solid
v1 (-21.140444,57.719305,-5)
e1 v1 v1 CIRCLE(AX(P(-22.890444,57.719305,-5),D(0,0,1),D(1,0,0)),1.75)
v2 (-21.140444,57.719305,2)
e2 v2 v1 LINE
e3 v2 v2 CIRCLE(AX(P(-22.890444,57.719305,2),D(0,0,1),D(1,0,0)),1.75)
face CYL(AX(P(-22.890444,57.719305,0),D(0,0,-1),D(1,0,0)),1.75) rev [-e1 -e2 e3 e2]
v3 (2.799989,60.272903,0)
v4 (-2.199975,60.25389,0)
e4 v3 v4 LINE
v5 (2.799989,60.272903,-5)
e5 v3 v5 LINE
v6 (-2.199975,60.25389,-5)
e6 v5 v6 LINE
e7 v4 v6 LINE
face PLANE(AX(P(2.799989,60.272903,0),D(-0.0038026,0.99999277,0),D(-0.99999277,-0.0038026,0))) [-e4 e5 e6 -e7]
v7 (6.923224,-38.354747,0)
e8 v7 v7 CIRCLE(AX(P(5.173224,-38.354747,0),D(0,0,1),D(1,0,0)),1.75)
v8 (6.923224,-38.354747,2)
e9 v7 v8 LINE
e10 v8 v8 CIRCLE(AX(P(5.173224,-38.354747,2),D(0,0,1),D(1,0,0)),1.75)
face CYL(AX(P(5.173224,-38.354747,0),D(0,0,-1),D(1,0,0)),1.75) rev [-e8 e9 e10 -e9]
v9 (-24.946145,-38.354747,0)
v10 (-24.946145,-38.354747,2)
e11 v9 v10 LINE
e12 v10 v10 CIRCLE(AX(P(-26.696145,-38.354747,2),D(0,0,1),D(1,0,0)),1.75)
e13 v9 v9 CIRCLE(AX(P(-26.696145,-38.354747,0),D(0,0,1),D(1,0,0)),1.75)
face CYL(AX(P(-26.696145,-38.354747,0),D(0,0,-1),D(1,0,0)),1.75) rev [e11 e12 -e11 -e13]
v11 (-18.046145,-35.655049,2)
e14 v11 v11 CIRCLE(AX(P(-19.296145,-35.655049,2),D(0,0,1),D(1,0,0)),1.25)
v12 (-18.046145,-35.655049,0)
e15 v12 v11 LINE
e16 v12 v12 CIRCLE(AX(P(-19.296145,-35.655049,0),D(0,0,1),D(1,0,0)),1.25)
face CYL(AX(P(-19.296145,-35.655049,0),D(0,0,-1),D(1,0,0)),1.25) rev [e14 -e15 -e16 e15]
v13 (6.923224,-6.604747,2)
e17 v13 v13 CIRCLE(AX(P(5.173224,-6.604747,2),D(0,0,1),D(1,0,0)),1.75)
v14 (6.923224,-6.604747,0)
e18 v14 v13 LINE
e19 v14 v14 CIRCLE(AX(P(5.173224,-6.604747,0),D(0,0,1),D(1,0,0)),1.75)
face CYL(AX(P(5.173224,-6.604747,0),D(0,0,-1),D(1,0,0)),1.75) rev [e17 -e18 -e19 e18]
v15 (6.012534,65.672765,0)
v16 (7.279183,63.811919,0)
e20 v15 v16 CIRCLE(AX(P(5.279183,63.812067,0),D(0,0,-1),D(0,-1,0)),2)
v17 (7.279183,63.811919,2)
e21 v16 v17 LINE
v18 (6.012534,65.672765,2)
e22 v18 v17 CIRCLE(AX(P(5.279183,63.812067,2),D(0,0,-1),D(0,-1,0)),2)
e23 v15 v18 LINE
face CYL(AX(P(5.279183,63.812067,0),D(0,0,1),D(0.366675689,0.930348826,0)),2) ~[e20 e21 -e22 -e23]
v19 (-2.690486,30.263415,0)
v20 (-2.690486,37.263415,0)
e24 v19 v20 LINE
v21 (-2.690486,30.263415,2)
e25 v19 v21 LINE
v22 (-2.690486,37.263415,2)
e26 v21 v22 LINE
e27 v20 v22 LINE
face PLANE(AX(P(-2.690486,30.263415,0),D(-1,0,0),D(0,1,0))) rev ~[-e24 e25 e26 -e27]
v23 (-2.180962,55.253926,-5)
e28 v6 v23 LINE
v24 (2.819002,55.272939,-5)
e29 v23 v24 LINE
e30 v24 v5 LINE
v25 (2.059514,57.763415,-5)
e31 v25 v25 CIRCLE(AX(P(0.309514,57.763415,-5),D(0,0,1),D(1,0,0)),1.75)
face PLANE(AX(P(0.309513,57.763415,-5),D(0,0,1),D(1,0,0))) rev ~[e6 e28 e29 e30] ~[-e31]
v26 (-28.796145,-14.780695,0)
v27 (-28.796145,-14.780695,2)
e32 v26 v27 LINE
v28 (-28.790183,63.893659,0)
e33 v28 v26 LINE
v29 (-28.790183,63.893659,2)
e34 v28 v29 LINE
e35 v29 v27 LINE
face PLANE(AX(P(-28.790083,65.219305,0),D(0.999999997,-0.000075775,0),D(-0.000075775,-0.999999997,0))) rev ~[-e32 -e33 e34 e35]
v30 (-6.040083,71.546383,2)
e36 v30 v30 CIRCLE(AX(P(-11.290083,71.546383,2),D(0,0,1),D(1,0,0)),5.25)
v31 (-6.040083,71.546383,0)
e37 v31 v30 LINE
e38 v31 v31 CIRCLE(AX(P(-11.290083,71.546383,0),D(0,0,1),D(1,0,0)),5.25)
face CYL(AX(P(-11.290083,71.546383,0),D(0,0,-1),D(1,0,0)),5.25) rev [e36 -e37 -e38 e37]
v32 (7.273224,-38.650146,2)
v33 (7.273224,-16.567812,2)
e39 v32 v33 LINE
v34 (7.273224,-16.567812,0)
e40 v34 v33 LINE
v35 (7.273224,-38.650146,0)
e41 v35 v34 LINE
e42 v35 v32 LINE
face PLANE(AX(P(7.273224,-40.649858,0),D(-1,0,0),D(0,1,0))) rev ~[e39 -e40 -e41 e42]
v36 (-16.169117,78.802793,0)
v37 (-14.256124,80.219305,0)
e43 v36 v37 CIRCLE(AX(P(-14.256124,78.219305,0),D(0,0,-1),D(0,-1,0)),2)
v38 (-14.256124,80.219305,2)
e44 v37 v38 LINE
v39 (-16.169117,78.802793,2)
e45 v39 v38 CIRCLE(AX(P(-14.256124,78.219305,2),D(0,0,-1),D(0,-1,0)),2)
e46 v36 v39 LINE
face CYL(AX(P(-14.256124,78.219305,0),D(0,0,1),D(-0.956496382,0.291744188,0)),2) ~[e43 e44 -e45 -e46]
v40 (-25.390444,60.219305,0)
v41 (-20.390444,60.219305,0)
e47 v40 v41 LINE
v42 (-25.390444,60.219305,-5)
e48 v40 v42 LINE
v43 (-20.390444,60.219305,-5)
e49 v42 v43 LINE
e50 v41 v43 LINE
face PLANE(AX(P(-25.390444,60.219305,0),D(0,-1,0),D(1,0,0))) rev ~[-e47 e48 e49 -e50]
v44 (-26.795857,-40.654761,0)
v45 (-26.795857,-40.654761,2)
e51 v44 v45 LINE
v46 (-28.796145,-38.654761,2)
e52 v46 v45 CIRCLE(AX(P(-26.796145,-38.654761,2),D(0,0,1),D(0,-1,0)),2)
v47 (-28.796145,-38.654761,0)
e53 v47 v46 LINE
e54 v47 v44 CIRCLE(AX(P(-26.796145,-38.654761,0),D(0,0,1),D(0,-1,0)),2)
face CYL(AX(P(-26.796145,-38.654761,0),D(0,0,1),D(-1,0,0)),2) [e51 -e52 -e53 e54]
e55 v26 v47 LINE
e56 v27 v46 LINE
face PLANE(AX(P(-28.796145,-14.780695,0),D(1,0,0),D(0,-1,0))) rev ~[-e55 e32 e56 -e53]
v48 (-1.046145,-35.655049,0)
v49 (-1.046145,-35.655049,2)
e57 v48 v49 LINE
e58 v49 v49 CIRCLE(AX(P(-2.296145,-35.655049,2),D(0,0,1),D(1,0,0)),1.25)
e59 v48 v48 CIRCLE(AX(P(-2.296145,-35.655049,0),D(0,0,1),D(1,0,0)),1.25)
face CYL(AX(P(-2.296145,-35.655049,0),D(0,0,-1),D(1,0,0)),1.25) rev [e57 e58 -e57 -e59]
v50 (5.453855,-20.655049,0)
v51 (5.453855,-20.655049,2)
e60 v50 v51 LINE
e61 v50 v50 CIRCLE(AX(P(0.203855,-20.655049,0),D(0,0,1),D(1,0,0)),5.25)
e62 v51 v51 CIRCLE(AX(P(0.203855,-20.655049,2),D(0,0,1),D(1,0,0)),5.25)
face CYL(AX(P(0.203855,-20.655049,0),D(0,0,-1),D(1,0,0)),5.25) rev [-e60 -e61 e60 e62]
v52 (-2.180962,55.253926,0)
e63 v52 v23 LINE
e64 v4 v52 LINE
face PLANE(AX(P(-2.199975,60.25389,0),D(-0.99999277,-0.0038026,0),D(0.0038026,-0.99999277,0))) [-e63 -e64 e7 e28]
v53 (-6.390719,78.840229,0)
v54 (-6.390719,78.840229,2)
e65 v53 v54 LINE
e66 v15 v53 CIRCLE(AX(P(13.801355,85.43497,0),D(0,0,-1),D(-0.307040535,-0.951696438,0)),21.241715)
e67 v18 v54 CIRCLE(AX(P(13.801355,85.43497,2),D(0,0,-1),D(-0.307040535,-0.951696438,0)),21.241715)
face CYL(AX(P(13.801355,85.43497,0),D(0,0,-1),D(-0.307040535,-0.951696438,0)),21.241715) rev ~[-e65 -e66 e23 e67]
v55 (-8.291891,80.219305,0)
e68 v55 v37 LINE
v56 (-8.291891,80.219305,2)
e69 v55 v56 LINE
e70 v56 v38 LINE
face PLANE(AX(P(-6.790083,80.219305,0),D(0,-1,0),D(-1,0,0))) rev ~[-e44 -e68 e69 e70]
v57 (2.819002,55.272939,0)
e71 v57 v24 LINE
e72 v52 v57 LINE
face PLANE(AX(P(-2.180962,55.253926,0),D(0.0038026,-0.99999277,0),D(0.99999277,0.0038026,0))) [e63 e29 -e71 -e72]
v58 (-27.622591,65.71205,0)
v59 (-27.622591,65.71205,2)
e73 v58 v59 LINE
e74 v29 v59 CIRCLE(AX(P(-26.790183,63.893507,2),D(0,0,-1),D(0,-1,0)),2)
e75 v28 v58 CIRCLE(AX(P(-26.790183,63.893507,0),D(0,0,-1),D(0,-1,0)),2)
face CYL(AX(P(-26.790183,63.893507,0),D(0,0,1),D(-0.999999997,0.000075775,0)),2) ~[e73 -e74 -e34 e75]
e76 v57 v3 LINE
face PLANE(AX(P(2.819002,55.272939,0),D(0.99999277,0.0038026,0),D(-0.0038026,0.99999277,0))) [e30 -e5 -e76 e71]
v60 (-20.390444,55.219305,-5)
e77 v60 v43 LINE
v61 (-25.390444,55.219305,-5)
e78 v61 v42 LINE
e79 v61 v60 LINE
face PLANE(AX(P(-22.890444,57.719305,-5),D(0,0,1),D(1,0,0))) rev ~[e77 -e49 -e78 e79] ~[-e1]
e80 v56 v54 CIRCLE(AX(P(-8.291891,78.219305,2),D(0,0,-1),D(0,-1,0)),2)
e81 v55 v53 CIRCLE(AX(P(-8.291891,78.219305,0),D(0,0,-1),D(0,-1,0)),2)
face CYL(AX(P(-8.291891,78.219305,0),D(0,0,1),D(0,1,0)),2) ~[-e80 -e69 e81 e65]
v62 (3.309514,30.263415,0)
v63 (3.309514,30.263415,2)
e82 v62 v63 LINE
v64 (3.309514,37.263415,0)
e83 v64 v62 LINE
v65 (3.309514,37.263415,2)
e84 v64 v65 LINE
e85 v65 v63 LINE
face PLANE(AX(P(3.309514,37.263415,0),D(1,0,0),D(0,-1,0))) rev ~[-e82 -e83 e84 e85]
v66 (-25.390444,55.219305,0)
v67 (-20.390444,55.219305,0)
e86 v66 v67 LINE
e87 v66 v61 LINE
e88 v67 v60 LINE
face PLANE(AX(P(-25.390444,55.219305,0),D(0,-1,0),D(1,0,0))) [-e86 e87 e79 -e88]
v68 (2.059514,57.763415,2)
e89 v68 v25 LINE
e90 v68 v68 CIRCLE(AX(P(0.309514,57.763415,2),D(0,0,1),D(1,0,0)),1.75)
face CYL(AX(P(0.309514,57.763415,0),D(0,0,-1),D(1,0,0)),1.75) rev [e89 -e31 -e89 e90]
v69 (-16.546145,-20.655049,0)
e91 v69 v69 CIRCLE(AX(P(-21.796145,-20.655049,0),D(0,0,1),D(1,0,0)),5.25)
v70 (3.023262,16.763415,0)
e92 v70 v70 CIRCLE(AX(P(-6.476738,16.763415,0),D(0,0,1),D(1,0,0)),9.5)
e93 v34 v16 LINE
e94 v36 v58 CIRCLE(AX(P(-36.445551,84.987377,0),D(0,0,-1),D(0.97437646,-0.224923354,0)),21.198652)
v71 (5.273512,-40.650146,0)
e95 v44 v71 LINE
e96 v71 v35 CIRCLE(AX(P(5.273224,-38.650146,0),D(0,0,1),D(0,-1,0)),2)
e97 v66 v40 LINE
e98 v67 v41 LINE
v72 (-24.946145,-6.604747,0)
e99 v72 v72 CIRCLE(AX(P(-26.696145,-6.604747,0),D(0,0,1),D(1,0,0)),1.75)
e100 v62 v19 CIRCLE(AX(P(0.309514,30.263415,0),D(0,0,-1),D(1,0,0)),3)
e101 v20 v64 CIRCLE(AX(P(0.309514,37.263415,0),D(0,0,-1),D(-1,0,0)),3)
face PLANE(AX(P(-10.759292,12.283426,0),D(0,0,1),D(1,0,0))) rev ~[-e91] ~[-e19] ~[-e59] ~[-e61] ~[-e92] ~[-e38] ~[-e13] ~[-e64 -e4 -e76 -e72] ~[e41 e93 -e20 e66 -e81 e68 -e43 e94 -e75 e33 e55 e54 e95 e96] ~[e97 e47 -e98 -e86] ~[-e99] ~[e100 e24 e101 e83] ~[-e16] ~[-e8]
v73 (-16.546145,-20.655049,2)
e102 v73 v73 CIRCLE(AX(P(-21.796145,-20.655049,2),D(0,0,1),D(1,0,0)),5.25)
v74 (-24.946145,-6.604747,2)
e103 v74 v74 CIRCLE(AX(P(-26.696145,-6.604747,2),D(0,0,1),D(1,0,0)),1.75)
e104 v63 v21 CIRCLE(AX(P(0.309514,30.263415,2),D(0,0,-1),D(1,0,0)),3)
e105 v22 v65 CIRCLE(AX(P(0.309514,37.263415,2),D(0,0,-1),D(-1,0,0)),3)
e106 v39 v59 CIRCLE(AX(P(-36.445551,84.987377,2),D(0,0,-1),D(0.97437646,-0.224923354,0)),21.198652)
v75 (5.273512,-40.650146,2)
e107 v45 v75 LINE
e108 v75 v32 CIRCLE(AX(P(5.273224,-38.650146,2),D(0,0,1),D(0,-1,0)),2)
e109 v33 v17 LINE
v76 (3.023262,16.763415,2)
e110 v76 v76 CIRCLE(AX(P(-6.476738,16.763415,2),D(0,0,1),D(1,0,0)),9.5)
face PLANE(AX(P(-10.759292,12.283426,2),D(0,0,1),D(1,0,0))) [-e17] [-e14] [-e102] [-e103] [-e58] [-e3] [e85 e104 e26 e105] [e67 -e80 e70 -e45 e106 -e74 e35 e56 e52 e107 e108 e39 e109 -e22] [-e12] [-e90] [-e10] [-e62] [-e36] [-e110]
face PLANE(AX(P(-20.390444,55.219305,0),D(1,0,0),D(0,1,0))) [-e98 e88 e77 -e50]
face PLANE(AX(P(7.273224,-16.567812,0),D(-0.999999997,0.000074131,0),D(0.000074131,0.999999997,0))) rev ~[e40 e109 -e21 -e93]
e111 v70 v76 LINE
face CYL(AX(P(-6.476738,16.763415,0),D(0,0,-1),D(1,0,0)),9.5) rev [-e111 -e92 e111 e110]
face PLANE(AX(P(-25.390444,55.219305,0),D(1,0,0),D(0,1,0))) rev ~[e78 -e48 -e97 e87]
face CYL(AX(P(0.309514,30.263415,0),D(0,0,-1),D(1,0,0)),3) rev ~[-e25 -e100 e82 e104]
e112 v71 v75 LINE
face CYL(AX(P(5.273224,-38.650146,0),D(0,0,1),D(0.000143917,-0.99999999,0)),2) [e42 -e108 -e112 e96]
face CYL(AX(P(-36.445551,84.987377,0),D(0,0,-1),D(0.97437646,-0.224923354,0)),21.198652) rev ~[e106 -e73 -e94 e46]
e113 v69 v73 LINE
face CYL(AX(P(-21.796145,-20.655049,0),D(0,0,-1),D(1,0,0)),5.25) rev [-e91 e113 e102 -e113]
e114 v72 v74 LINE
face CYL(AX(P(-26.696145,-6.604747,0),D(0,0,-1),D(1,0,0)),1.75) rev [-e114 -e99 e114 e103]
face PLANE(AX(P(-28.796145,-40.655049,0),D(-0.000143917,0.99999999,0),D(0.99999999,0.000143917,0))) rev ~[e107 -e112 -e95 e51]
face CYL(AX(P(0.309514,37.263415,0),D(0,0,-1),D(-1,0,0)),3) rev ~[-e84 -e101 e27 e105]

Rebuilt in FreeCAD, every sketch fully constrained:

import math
import FreeCAD as App
import Part
import Sketcher

V = App.Vector


def edges_at(feature, points):
    """Names of the edges that pass closest to the given points."""
    edges = feature.Shape.Edges
    near = lambda p: min(range(len(edges)), key=lambda i: edges[i].distToShape(Part.Vertex(*p))[0])
    return sorted({f"Edge{near(p) + 1}" for p in points})


def add_polygon(sketch, points):
    """Adds a closed chain of lines whose ends are joined by coincident constraints."""
    first, n = sketch.GeometryCount, len(points)
    for a, b in zip(points, points[1:] + points[:1]):
        sketch.addGeometry(Part.LineSegment(App.Vector(*a, 0), App.Vector(*b, 0)), False)
    for i in range(n):
        sketch.addConstraint(Sketcher.Constraint("Coincident", first + i, 2, first + (i + 1) % n, 1))

doc = App.newDocument("Part")
body = doc.addObject("PartDesign::Body", "Body")

# Sketch on XY plane
sketch1 = body.newObject("Sketcher::SketchObject", "Sketch")
sketch1.AttachmentSupport = (doc.getObject("XY_Plane"), [""])
sketch1.MapMode = "FlatFace"
sketch1.addGeometry(Part.LineSegment(V(-28.790083, 65.219305, 0), V(-28.796145, -14.780695, 0)), False)
sketch1.addGeometry(Part.LineSegment(V(-28.796145, -14.780695, 0), V(-28.796145, -40.655049, 0)), False)
sketch1.addGeometry(Part.LineSegment(V(-28.796145, -40.655049, 0), V(7.273224, -40.649858, 0)), False)
sketch1.addGeometry(Part.LineSegment(V(7.273224, -40.649858, 0), V(7.273224, -16.567812, 0)), False)
sketch1.addGeometry(Part.LineSegment(V(7.273224, -16.567812, 0), V(7.279287, 65.219305, 0)), False)
sketch1.addGeometry(Part.ArcOfCircle(Part.Circle(V(13.801355, 85.43497, 0), V(0, 0, 1), 21.241715), math.radians(-165.786325), math.radians(-107.88097)), False)
sketch1.addGeometry(Part.LineSegment(V(-6.790083, 80.219305, 0), V(-15.790083, 80.219305, 0)), False)
sketch1.addGeometry(Part.ArcOfCircle(Part.Circle(V(-36.445551, 84.987377, 0), V(0, 0, 1), 21.198652), math.radians(-68.830395), math.radians(-12.998371)), False)
sketch1.addGeometry(Part.Circle(V(-26.696145, -38.354747, 0), V(0, 0, 1), 1.75), False)
sketch1.addGeometry(Part.Circle(V(-21.796145, -20.655049, 0), V(0, 0, 1), 5.25), False)
sketch1.addGeometry(Part.Circle(V(-19.296145, -35.655049, 0), V(0, 0, 1), 1.25), False)
sketch1.addGeometry(Part.Circle(V(-26.696145, -6.604747, 0), V(0, 0, 1), 1.75), False)
sketch1.addGeometry(Part.Circle(V(-2.296145, -35.655049, 0), V(0, 0, 1), 1.25), False)
sketch1.addGeometry(Part.Circle(V(5.173224, -38.354747, 0), V(0, 0, 1), 1.75), False)
sketch1.addGeometry(Part.Circle(V(0.203855, -20.655049, 0), V(0, 0, 1), 5.25), False)
sketch1.addGeometry(Part.Circle(V(-6.476738, 16.763415, 0), V(0, 0, 1), 9.5), False)
sketch1.addGeometry(Part.Circle(V(5.173224, -6.604747, 0), V(0, 0, 1), 1.75), False)
sketch1.addGeometry(Part.Circle(V(-22.890444, 57.719305, 0), V(0, 0, 1), 1.75), False)
sketch1.addGeometry(Part.Circle(V(-11.290083, 71.546383, 0), V(0, 0, 1), 5.25), False)
sketch1.addGeometry(Part.LineSegment(V(-2.690486, 30.263415, 0), V(-2.690486, 37.263415, 0)), False)
sketch1.addGeometry(Part.ArcOfCircle(Part.Circle(V(0.309514, 37.263415, 0), V(0, 0, 1), 3), math.radians(0), math.radians(180)), False)
sketch1.addGeometry(Part.LineSegment(V(3.309514, 37.263415, 0), V(3.309514, 30.263415, 0)), False)
sketch1.addGeometry(Part.ArcOfCircle(Part.Circle(V(0.309514, 30.263415, 0), V(0, 0, 1), 3), math.radians(180), math.radians(360)), False)
sketch1.addGeometry(Part.Circle(V(0.309514, 57.763415, 0), V(0, 0, 1), 1.75), False)
sketch1.addConstraint(Sketcher.Constraint("Coincident", 0, 2, 1, 1))
sketch1.addConstraint(Sketcher.Constraint("Coincident", 1, 2, 2, 1))
sketch1.addConstraint(Sketcher.Constraint("Coincident", 2, 2, 3, 1))
sketch1.addConstraint(Sketcher.Constraint("Coincident", 3, 2, 4, 1))
sketch1.addConstraint(Sketcher.Constraint("Coincident", 4, 2, 5, 2))
sketch1.addConstraint(Sketcher.Constraint("Coincident", 5, 1, 6, 1))
sketch1.addConstraint(Sketcher.Constraint("Coincident", 6, 2, 7, 2))
sketch1.addConstraint(Sketcher.Constraint("Coincident", 7, 1, 0, 1))
sketch1.addConstraint(Sketcher.Constraint("Coincident", 19, 2, 20, 2))
sketch1.addConstraint(Sketcher.Constraint("Coincident", 20, 1, 21, 1))
sketch1.addConstraint(Sketcher.Constraint("Coincident", 21, 2, 22, 2))
sketch1.addConstraint(Sketcher.Constraint("Coincident", 22, 1, 19, 1))
sketch1.addConstraint(Sketcher.Constraint("Vertical", 1))
sketch1.addConstraint(Sketcher.Constraint("Vertical", 3))
sketch1.addConstraint(Sketcher.Constraint("Horizontal", 6))
sketch1.addConstraint(Sketcher.Constraint("Vertical", 19))
sketch1.addConstraint(Sketcher.Constraint("Vertical", 21))
sketch1.addConstraint(Sketcher.Constraint("Diameter", 15, 19.0))
sketch1.addConstraint(Sketcher.Constraint("Radius", 20, 3.0))
sketch1.addConstraint(Sketcher.Constraint("Diameter", 8, 3.5))
sketch1.addConstraint(Sketcher.Constraint("Diameter", 9, 10.5))
sketch1.addConstraint(Sketcher.Constraint("Diameter", 10, 2.5))
sketch1.addConstraint(Sketcher.Constraint("Diameter", 11, 3.5))
sketch1.addConstraint(Sketcher.Constraint("Diameter", 12, 2.5))
sketch1.addConstraint(Sketcher.Constraint("Diameter", 13, 3.5))
sketch1.addConstraint(Sketcher.Constraint("Diameter", 14, 10.5))
sketch1.addConstraint(Sketcher.Constraint("Diameter", 16, 3.5))
sketch1.addConstraint(Sketcher.Constraint("Diameter", 17, 3.5))
sketch1.addConstraint(Sketcher.Constraint("Diameter", 18, 10.5))
sketch1.addConstraint(Sketcher.Constraint("Diameter", 23, 3.5))
sketch1.addConstraint(Sketcher.Constraint("DistanceX", 6, 2, 6, 1, 9.0))
sketch1.addConstraint(Sketcher.Constraint("DistanceY", 19, 1, 19, 2, 7.0))
sketch1.addConstraint(Sketcher.Constraint("DistanceY", 21, 2, 21, 1, 7.0))
sketch1.addConstraint(Sketcher.Constraint("Distance", 0, 80.0))
sketch1.addConstraint(Sketcher.Constraint("DistanceY", 10, 3, 9, 3, 15.0))
sketch1.addConstraint(Sketcher.Constraint("DistanceX", 10, 3, 12, 3, 17.0))
sketch1.addConstraint(Sketcher.Constraint("DistanceY", 12, 3, 9, 3, 15.0))
sketch1.addConstraint(Sketcher.Constraint("DistanceY", 12, 3, 14, 3, 15.0))
sketch1.addConstraint(Sketcher.Constraint("DistanceX", 9, 3, 14, 3, 22.0))
sketch1.addConstraint(Sketcher.Constraint("DistanceY", 22, 3, 20, 3, 7.0))
sketch1.addConstraint(Sketcher.Constraint("DistanceX", 0, 2, 9, 3, 7.0))
sketch1.addConstraint(Sketcher.Constraint("DistanceY", 1, 2, 10, 3, 5.0))
sketch1.addConstraint(Sketcher.Constraint("DistanceY", 4, 2, 5, 1, 15.0))
sketch1.addConstraint(Sketcher.Constraint("DistanceX", 7, 1, 6, 2, 13.0))
sketch1.addConstraint(Sketcher.Constraint("DistanceY", 7, 1, 6, 2, 15.0))
sketch1.addConstraint(Sketcher.Constraint("DistanceY", 22, 3, 19, 2, 7.0))
sketch1.addConstraint(Sketcher.Constraint("DistanceX", 19, 2, 23, 3, 3.0))
sketch1.addConstraint(Sketcher.Constraint("DistanceY", 22, 3, 20, 1, 7.0))
sketch1.addConstraint(Sketcher.Constraint("DistanceX", 8, 3, 9, 3, 4.9))
sketch1.addConstraint(Sketcher.Constraint("DistanceX", 8, 3, 10, 3, 7.4))
sketch1.addConstraint(Sketcher.Constraint("DistanceX", 11, 3, 9, 3, 4.9))
sketch1.addConstraint(Sketcher.Constraint("DistanceY", 15, 3, 20, 3, 20.5))
sketch1.addConstraint(Sketcher.Constraint("DistanceY", 20, 3, 23, 3, 20.5))
sketch1.addConstraint(Sketcher.Constraint("DistanceX", 13, 3, 2, 2, 2.1))
sketch1.addConstraint(Sketcher.Constraint("DistanceX", 16, 3, 3, 2, 2.1))
sketch1.addConstraint(Sketcher.Constraint("DistanceY", 17, 3, 4, 2, 7.5))
sketch1.addConstraint(Sketcher.Constraint("DistanceX", 18, 3, 5, 1, 4.5))
sketch1.addConstraint(Sketcher.Constraint("DistanceY", 8, 3, 11, 3, 31.75))
sketch1.addConstraint(Sketcher.Constraint("DistanceY", 13, 3, 11, 3, 31.75))
sketch1.addConstraint(Sketcher.Constraint("DistanceY", 13, 3, 16, 3, 31.75))
sketch1.addConstraint(Sketcher.Constraint("Radius", 5, 21.241715))
sketch1.addConstraint(Sketcher.Constraint("Radius", 7, 21.198652))
sketch1.addConstraint(Sketcher.Constraint("DistanceX", 8, 3, 5, 3, 40.4975))
sketch1.addConstraint(Sketcher.Constraint("DistanceY", 8, 3, 9, 3, 17.699698))
sketch1.addConstraint(Sketcher.Constraint("DistanceX", 17, 3, 5, 3, 36.691799))
sketch1.addConstraint(Sketcher.Constraint("Distance", 2, 36.069369))
sketch1.addConstraint(Sketcher.Constraint("DistanceY", 1, 2, 1, 1, 25.874354))
sketch1.addConstraint(Sketcher.Constraint("DistanceY", 3, 1, 3, 2, 24.082046))
sketch1.addConstraint(Sketcher.Constraint("DistanceY", -1, 1, 5, 3, 85.43497))
sketch1.addConstraint(Sketcher.Constraint("DistanceX", 7, 3, -1, 1, 36.445551))
sketch1.addConstraint(Sketcher.Constraint("DistanceY", 9, 3, -1, 1, 20.655049))
sketch1.addConstraint(Sketcher.Constraint("DistanceY", 2, 2, -1, 1, 40.649858))
sketch1.addConstraint(Sketcher.Constraint("DistanceY", 11, 3, 15, 3, 23.368162))
sketch1.addConstraint(Sketcher.Constraint("DistanceY", 17, 3, 18, 3, 13.827078))
sketch1.addConstraint(Sketcher.Constraint("DistanceX", 20, 3, 16, 3, 4.86371))
sketch1.addConstraint(Sketcher.Constraint("DistanceX", 15, 3, -1, 1, 6.476738))
pad1 = body.newObject("PartDesign::Pad", "Pad")
pad1.Profile = sketch1
pad1.Length = 2

# Sketch on XY plane
sketch2 = body.newObject("Sketcher::SketchObject", "Sketch001")
sketch2.AttachmentSupport = (doc.getObject("XY_Plane"), [""])
sketch2.MapMode = "FlatFace"
add_polygon(sketch2, [(2.799989, 60.272903), (-2.199975, 60.25389), (-2.180962, 55.253926), (2.819002, 55.272939)])  # lines 0-3
sketch2.addGeometry(Part.Circle(V(0.309514, 57.763415, 0), V(0, 0, 1), 1.75), False)  # 4
add_polygon(sketch2, [(-25.390444, 60.219305), (-25.390444, 55.219305), (-20.390444, 55.219305), (-20.390444, 60.219305)])  # lines 5-8
sketch2.addGeometry(Part.Circle(V(-22.890444, 57.719305, 0), V(0, 0, 1), 1.75), False)  # 9
sketch2.addConstraint(Sketcher.Constraint("Vertical", 5))
sketch2.addConstraint(Sketcher.Constraint("Horizontal", 6))
sketch2.addConstraint(Sketcher.Constraint("Vertical", 7))
sketch2.addConstraint(Sketcher.Constraint("Horizontal", 8))
sketch2.addConstraint(Sketcher.Constraint("Equal", 4, 9))
sketch2.addConstraint(Sketcher.Constraint("Perpendicular", 0, 1))
sketch2.addConstraint(Sketcher.Constraint("Perpendicular", 1, 2))
sketch2.addConstraint(Sketcher.Constraint("Perpendicular", 2, 3))
sketch2.addConstraint(Sketcher.Constraint("Equal", 8, 5))
sketch2.addConstraint(Sketcher.Constraint("Equal", 0, 1))
sketch2.addConstraint(Sketcher.Constraint("Diameter", 4, 3.5))
sketch2.addConstraint(Sketcher.Constraint("DistanceX", 6, 1, 6, 2, 5.0))
sketch2.addConstraint(Sketcher.Constraint("Distance", 0, 5.0))
sketch2.addConstraint(Sketcher.Constraint("DistanceX", 5, 2, 9, 3, 2.5))
sketch2.addConstraint(Sketcher.Constraint("DistanceY", 5, 2, 9, 3, 2.5))
sketch2.addConstraint(Sketcher.Constraint("DistanceX", -1, 1, 2, 2, 2.819002))
sketch2.addConstraint(Sketcher.Constraint("DistanceY", 9, 3, 3, 2, 2.553598))
sketch2.addConstraint(Sketcher.Constraint("DistanceY", -1, 1, 0, 2, 60.25389))
sketch2.addConstraint(Sketcher.Constraint("DistanceY", -1, 1, 2, 2, 55.272939))
sketch2.addConstraint(Sketcher.Constraint("DistanceY", 9, 3, 4, 3, 0.04411))
sketch2.addConstraint(Sketcher.Constraint("DistanceX", 0, 2, 4, 3, 2.509489))
sketch2.addConstraint(Sketcher.Constraint("DistanceX", 9, 3, 0, 2, 20.690469))
pad2 = body.newObject("PartDesign::Pad", "Pad001")
pad2.Profile = sketch2
pad2.Length = 5
pad2.Reversed = True
doc.recompute()

fillet = body.newObject("PartDesign::Fillet", "Fillet")
fillet.Base = (pad2, edges_at(pad2, [
    (-28.79, 65.219, 1),
    (7.279, 65.219, 1),
    (7.273, -40.65, 1),
    (-28.796, -40.655, 1),
    (-15.79, 80.219, 1),
    (-6.79, 80.219, 1),
]))
fillet.Radius = 2

doc.recompute()
